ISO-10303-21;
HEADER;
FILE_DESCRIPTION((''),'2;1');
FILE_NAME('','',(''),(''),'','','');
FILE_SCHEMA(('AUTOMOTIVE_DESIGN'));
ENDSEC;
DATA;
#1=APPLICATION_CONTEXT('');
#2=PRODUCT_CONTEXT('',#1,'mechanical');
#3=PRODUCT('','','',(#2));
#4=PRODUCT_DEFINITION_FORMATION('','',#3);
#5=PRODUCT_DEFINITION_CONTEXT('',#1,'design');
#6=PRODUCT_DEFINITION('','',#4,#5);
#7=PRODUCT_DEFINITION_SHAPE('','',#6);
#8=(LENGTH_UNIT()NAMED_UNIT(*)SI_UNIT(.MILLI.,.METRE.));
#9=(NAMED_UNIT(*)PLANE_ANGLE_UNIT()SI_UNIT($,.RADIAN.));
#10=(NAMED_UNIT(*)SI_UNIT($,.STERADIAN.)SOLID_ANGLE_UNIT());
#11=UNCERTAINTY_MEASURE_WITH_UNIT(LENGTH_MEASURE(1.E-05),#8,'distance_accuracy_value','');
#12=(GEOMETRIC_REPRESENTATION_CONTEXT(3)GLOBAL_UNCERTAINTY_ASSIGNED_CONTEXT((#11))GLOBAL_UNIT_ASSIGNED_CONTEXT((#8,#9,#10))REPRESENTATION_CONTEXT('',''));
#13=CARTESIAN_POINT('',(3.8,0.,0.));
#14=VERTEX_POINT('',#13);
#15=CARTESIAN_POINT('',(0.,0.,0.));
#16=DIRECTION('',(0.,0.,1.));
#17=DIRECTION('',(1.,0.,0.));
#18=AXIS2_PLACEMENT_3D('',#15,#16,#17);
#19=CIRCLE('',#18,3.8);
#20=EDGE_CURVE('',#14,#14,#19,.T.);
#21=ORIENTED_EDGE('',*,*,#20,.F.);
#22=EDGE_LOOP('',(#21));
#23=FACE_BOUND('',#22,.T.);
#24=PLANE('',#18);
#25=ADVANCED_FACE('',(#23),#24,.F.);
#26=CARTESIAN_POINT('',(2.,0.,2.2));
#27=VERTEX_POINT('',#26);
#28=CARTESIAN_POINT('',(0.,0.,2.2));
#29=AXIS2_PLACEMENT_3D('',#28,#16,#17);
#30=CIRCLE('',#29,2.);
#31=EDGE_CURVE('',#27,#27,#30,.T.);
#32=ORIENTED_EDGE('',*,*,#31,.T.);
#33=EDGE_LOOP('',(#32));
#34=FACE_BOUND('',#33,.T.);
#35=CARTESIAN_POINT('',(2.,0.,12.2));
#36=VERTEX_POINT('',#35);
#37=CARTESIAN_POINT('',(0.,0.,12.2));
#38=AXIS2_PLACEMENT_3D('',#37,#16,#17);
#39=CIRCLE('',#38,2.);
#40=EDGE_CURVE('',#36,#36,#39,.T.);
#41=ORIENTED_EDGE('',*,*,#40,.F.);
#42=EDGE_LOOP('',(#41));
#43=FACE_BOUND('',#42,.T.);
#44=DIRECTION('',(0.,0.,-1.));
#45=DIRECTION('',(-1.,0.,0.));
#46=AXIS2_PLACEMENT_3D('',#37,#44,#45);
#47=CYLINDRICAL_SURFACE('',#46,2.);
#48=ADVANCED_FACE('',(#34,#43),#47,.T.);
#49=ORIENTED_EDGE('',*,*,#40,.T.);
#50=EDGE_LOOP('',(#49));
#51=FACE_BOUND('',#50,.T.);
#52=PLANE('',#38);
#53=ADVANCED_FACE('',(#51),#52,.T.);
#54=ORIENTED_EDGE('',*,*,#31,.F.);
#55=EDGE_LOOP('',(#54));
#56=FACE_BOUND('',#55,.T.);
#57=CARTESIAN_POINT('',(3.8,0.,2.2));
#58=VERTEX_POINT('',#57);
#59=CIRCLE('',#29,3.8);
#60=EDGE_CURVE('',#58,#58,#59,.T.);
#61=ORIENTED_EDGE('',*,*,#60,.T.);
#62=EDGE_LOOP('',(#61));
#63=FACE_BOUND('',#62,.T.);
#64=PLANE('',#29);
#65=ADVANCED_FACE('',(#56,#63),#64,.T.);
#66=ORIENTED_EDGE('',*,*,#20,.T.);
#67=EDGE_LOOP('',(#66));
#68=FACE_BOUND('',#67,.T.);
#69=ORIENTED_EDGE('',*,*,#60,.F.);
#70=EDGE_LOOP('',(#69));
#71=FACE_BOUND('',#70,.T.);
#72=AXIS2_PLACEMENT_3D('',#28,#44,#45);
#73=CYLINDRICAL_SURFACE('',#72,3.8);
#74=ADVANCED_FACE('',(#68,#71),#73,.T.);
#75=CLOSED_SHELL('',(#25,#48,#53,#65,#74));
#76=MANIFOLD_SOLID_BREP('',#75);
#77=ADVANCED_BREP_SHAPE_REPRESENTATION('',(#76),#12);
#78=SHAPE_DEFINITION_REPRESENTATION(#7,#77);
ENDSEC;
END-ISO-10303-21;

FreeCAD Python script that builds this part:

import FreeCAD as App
import Part
import Sketcher
Q = App.Units.Quantity

doc = App.newDocument("Part")
body = doc.addObject("PartDesign::Body", "Body")

# Sketch on XY plane
sketch1 = body.newObject("Sketcher::SketchObject", "Sketch")
sketch1.AttachmentSupport = (doc.getObject("XY_Plane"), [""])
sketch1.MapMode = "FlatFace"
sketch1.addGeometry(Part.Circle(App.Vector(0, 0, 0), App.Vector(0, 0, 1), 3.8), False)
sketch1.addConstraint(Sketcher.Constraint("Coincident", 0, 3, -1, 1))
sketch1.addConstraint(Sketcher.Constraint("Diameter", 0, Q("7.6 mm")))
pad1 = body.newObject("PartDesign::Pad", "Pad")
pad1.Profile = sketch1
pad1.Length = 2.2

# Sketch on XY plane
sketch2 = body.newObject("Sketcher::SketchObject", "Sketch001")
sketch2.AttachmentSupport = (doc.getObject("XY_Plane"), [""])
sketch2.MapMode = "FlatFace"
sketch2.AttachmentOffset = App.Placement(App.Vector(0, 0, 2.2), App.Rotation())
sketch2.addGeometry(Part.Circle(App.Vector(0, 0, 0), App.Vector(0, 0, 1), 2), False)
sketch2.addConstraint(Sketcher.Constraint("Coincident", 0, 3, -1, 1))
sketch2.addConstraint(Sketcher.Constraint("Diameter", 0, Q("4 mm")))
pad2 = body.newObject("PartDesign::Pad", "Pad001")
pad2.Profile = sketch2
pad2.Length = 10

doc.recompute()
